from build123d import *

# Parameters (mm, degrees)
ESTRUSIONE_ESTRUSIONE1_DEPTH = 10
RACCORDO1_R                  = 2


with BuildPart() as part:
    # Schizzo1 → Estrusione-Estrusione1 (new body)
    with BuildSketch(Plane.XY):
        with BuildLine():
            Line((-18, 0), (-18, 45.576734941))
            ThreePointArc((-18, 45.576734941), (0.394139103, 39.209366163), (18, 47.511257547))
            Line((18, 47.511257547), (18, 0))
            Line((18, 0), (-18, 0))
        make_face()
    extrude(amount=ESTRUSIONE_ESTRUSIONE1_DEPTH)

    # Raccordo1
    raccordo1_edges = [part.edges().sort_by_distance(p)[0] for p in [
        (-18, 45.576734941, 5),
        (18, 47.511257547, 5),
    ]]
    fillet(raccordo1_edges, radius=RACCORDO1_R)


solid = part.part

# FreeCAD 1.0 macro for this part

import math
import FreeCAD as App
import Part
import Sketcher


def edges_at(feature, points):
    """Names of the edges that pass closest to the given points."""
    edges = feature.Shape.Edges
    near = lambda p: min(range(len(edges)), key=lambda i: edges[i].distToShape(Part.Vertex(*p))[0])
    return sorted({f"Edge{near(p) + 1}" for p in points})

doc = App.newDocument("Part")
body = doc.addObject("PartDesign::Body", "Body")

# Sketch on XY plane
sketch1 = body.newObject("Sketcher::SketchObject", "Sketch")
sketch1.AttachmentSupport = (doc.getObject("XY_Plane"), [""])
sketch1.MapMode = "FlatFace"
sketch1.addGeometry([
    Part.LineSegment(App.Vector(-18, 46, 0), App.Vector(-18, 0, 0)),
    Part.LineSegment(App.Vector(-18, 0, 0), App.Vector(18, 0, 0)),
    Part.LineSegment(App.Vector(18, 0, 0), App.Vector(18, 48, 0)),
    Part.ArcOfCircle(Part.Circle(App.Vector(-1, 65, 0), App.Vector(0, 0, 1), 26), math.radians(-131), math.radians(-43)),
], False)
sketch1.addConstraint([
    Sketcher.Constraint("Coincident", 0, 2, 1, 1),
    Sketcher.Constraint("Coincident", 1, 2, 2, 1),
    Sketcher.Constraint("Coincident", 2, 2, 3, 2),
    Sketcher.Constraint("Coincident", 3, 1, 0, 1),
    Sketcher.Constraint("Vertical", 0),
    Sketcher.Constraint("Horizontal", 1),
    Sketcher.Constraint("Vertical", 2),
    Sketcher.Constraint("Symmetric", 0, 2, 1, 2, -1, 1),
    Sketcher.Constraint("DistanceX", 1, 1, 1, 2, 36.0),
    Sketcher.Constraint("Radius", 3, 25.791476),
    Sketcher.Constraint("DistanceY", 0, 2, 0, 1, 45.576735),
    Sketcher.Constraint("DistanceY", 2, 1, 2, 2, 47.511258),
])
pad1 = body.newObject("PartDesign::Pad", "Pad")
pad1.Profile = sketch1
pad1.Length = 10
doc.recompute()

fillet = body.newObject("PartDesign::Fillet", "Fillet")
fillet.Base = (pad1, edges_at(pad1, [(-18, 45.577, 5), (18, 47.511, 5)]))
fillet.Radius = 2

doc.recompute()
